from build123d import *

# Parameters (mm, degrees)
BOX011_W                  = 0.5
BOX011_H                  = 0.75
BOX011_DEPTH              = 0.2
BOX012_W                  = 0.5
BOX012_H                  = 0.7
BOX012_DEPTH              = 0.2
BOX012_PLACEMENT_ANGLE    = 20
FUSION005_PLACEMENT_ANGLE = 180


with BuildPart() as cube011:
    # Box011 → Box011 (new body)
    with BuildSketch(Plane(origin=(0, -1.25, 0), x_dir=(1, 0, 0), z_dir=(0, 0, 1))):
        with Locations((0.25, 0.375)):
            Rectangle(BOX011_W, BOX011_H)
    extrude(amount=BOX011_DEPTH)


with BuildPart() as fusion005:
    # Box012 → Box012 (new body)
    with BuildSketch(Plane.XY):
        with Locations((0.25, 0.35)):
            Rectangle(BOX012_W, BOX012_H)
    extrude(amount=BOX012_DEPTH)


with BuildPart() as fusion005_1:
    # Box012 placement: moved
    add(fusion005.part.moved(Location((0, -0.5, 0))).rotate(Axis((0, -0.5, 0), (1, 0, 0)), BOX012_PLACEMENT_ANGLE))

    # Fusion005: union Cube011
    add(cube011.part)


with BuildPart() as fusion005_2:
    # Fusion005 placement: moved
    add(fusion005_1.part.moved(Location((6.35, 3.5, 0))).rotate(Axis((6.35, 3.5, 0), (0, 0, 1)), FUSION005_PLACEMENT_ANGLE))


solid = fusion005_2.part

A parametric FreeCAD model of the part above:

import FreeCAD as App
import Part
import Sketcher

doc = App.newDocument("Part")
body = doc.addObject("PartDesign::Body", "Body")

sketch1 = doc.addObject("Sketcher::SketchObject", "Sketch")
body.addObject(sketch1)
sketch1.AttachmentSupport = (doc.XY_Plane, [""])
sketch1.MapMode = "FlatFace"
sketch1.addGeometry([
    Part.LineSegment(App.Vector(0, -0.5, 0), App.Vector(0, -1.2, 0)),
    Part.LineSegment(App.Vector(0, -1.2, 0), App.Vector(0.5, -1.2, 0)),
    Part.LineSegment(App.Vector(0.5, -1.2, 0), App.Vector(0.5, -0.5, 0)),
    Part.LineSegment(App.Vector(0.5, -0.5, 0), App.Vector(0, -0.5, 0)),
], False)
sketch1.addConstraint([
    Sketcher.Constraint("Coincident", 0, 2, 1, 1),
    Sketcher.Constraint("Coincident", 1, 2, 2, 1),
    Sketcher.Constraint("Coincident", 2, 2, 3, 1),
    Sketcher.Constraint("Coincident", 3, 2, 0, 1),
    Sketcher.Constraint("Vertical", 0),
    Sketcher.Constraint("Horizontal", 1),
    Sketcher.Constraint("Vertical", 2),
    Sketcher.Constraint("Horizontal", 3),
    Sketcher.Constraint("PointOnObject", 0, 2, -2),
    Sketcher.Constraint("DistanceX", 1, 1, 1, 2, 0.5),
    Sketcher.Constraint("DistanceY", 0, 2, 0, 1, 0.75),
    Sketcher.Constraint("DistanceY", 2, 2, -1, 1, 0.5),
])
pad1 = doc.addObject("PartDesign::Pad", "Pad")
body.addObject(pad1)
pad1.Profile = sketch1
pad1.Length = 0.2
body2 = doc.addObject("PartDesign::Body", "Body001")

sketch2 = doc.addObject("Sketcher::SketchObject", "Sketch001")
body2.addObject(sketch2)
sketch2.AttachmentSupport = (doc.getObject("XY_Plane001"), [""])
sketch2.MapMode = "FlatFace"
sketch2.addGeometry([
    Part.LineSegment(App.Vector(0, 0.7, 0), App.Vector(0, 0, 0)),
    Part.LineSegment(App.Vector(0, 0, 0), App.Vector(0.5, 0, 0)),
    Part.LineSegment(App.Vector(0.5, 0, 0), App.Vector(0.5, 0.7, 0)),
    Part.LineSegment(App.Vector(0.5, 0.7, 0), App.Vector(0, 0.7, 0)),
], False)
sketch2.addConstraint([
    Sketcher.Constraint("Coincident", 0, 2, 1, 1),
    Sketcher.Constraint("Coincident", 1, 2, 2, 1),
    Sketcher.Constraint("Coincident", 2, 2, 3, 1),
    Sketcher.Constraint("Coincident", 3, 2, 0, 1),
    Sketcher.Constraint("Vertical", 0),
    Sketcher.Constraint("Horizontal", 1),
    Sketcher.Constraint("Vertical", 2),
    Sketcher.Constraint("Horizontal", 3),
    Sketcher.Constraint("Coincident", 0, 2, -1, 1),
    Sketcher.Constraint("DistanceX", 1, 1, 1, 2, 0.5),
    Sketcher.Constraint("DistanceY", 0, 2, 0, 1, 0.7),
])
pad2 = doc.addObject("PartDesign::Pad", "Pad001")
body2.addObject(pad2)
pad2.Profile = sketch2
pad2.Length = 0.2
body3 = doc.addObject("PartDesign::Body", "Body002")
doc.recompute()

body2.Placement = App.Placement(App.Vector(0, -0.5, 0), App.Rotation(App.Vector(1, 0, 0), 20))
boolean = doc.addObject("PartDesign::Boolean", "Boolean")
body3.addObject(boolean)
boolean.Type = "Fuse"
boolean.addObjects([body2])
doc.recompute()

boolean2 = doc.addObject("PartDesign::Boolean", "Boolean001")
body3.addObject(boolean2)
boolean2.Type = "Fuse"
boolean2.addObjects([body])
body4 = doc.addObject("PartDesign::Body", "Body003")
doc.recompute()

body3.Placement = App.Placement(App.Vector(6.35, 3.5, 0), App.Rotation(App.Vector(0, 0, 1), 180))
boolean3 = doc.addObject("PartDesign::Boolean", "Boolean002")
body4.addObject(boolean3)
boolean3.Type = "Fuse"
boolean3.addObjects([body3])

doc.recompute()
